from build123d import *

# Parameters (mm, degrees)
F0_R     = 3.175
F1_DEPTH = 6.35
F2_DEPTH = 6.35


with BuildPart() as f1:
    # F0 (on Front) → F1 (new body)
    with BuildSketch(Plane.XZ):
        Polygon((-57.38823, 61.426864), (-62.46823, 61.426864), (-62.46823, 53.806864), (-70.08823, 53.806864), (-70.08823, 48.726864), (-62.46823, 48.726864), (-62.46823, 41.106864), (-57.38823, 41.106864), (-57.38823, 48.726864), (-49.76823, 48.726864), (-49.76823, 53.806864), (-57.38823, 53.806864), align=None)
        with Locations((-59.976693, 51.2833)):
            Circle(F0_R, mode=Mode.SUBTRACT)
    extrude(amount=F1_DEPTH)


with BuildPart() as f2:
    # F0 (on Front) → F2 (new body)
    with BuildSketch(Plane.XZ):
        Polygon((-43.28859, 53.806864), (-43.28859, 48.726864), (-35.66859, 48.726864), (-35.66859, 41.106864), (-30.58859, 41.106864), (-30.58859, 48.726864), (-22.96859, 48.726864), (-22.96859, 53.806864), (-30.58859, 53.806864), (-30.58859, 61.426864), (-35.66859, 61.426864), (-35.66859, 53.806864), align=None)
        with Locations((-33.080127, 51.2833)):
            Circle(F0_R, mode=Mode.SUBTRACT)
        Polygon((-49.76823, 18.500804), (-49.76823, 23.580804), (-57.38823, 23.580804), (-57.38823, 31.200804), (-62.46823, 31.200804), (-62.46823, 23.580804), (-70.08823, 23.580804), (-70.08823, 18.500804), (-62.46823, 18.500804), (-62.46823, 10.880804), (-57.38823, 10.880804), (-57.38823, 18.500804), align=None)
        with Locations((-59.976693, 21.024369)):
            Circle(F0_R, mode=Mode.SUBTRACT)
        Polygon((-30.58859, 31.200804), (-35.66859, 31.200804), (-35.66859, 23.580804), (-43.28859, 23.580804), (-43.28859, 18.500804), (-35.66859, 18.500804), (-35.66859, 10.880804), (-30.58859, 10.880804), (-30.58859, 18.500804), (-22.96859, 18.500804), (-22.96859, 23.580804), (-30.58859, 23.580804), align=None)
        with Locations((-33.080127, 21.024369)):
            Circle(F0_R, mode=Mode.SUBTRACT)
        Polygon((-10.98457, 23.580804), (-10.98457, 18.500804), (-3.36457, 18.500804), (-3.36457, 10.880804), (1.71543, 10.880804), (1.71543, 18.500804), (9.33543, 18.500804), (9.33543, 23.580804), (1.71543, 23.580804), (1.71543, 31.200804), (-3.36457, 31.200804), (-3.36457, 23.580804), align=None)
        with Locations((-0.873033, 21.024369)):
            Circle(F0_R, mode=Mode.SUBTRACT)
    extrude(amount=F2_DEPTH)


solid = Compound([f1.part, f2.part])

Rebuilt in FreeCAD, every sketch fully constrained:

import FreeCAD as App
import Part
import Sketcher

V = App.Vector
Q = App.Units.Quantity

doc = App.newDocument("Part")
body = doc.addObject("PartDesign::Body", "Body")

# Sketch on XZ plane
sketch1 = doc.addObject("Sketcher::SketchObject", "Sketch")
body.addObject(sketch1)
sketch1.AttachmentSupport = (doc.XZ_Plane, [""])
sketch1.MapMode = "FlatFace"
sketch1.addGeometry([
    Part.LineSegment(V(-57.4, 61.4, 0), V(-62.5, 61.4, 0)),  # 0
    Part.LineSegment(V(-62.5, 61.4, 0), V(-62.5, 53.8, 0)),  # 1
    Part.LineSegment(V(-62.5, 53.8, 0), V(-70.1, 53.8, 0)),  # 2
    Part.LineSegment(V(-70.1, 53.8, 0), V(-70.1, 48.7, 0)),  # 3
    Part.LineSegment(V(-70.1, 48.7, 0), V(-62.5, 48.7, 0)),  # 4
    Part.LineSegment(V(-62.5, 48.7, 0), V(-62.5, 41.1, 0)),  # 5
    Part.LineSegment(V(-62.5, 41.1, 0), V(-57.4, 41.1, 0)),  # 6
    Part.LineSegment(V(-57.4, 41.1, 0), V(-57.4, 48.7, 0)),  # 7
    Part.LineSegment(V(-57.4, 48.7, 0), V(-49.8, 48.7, 0)),  # 8
    Part.LineSegment(V(-49.8, 48.7, 0), V(-49.8, 53.8, 0)),  # 9
    Part.LineSegment(V(-49.8, 53.8, 0), V(-57.4, 53.8, 0)),  # 10
    Part.LineSegment(V(-57.4, 53.8, 0), V(-57.4, 61.4, 0)),  # 11
    Part.Circle(V(-60, 51.3, 0), V(0, 0, 1), 3.2),  # 12
], False)
sketch1.addConstraint([
    Sketcher.Constraint("Coincident", 0, 2, 1, 1),
    Sketcher.Constraint("Coincident", 1, 2, 2, 1),
    Sketcher.Constraint("Coincident", 2, 2, 3, 1),
    Sketcher.Constraint("Coincident", 3, 2, 4, 1),
    Sketcher.Constraint("Coincident", 4, 2, 5, 1),
    Sketcher.Constraint("Coincident", 5, 2, 6, 1),
    Sketcher.Constraint("Coincident", 6, 2, 7, 1),
    Sketcher.Constraint("Coincident", 7, 2, 8, 1),
    Sketcher.Constraint("Coincident", 8, 2, 9, 1),
    Sketcher.Constraint("Coincident", 9, 2, 10, 1),
    Sketcher.Constraint("Coincident", 10, 2, 11, 1),
    Sketcher.Constraint("Coincident", 11, 2, 0, 1),
    Sketcher.Constraint("Horizontal", 0),
    Sketcher.Constraint("Vertical", 1),
    Sketcher.Constraint("Horizontal", 2),
    Sketcher.Constraint("Vertical", 3),
    Sketcher.Constraint("Horizontal", 4),
    Sketcher.Constraint("Vertical", 5),
    Sketcher.Constraint("Horizontal", 6),
    Sketcher.Constraint("Vertical", 7),
    Sketcher.Constraint("Horizontal", 8),
    Sketcher.Constraint("Vertical", 9),
    Sketcher.Constraint("Horizontal", 10),
    Sketcher.Constraint("Vertical", 11),
    Sketcher.Constraint("Horizontal", 4, 2, 7, 2),
    Sketcher.Constraint("Horizontal", 2, 2, 9, 2),
    Sketcher.Constraint("Vertical", 1, 2, 4, 2),
    Sketcher.Constraint("Vertical", 7, 2, 10, 2),
    Sketcher.Constraint("Equal", 4, 8),
    Sketcher.Constraint("Equal", 10, 1),
    Sketcher.Constraint("Equal", 6, 3),
    Sketcher.Constraint("Equal", 1, 5),
    Sketcher.Constraint("Diameter", 12, Q("0.25 in")),
    Sketcher.Constraint("DistanceX", 0, 2, 0, 1, Q("0.2 in")),
    Sketcher.Constraint("DistanceX", 2, 2, 2, 1, Q("0.3 in")),
    Sketcher.Constraint("DistanceY", -1, 1, 12, 3, 51.2833),
    Sketcher.Constraint("DistanceX", 0, 2, -1, 1, 62.46823),
    Sketcher.Constraint("DistanceX", 12, 3, -1, 1, 59.976693),
    Sketcher.Constraint("DistanceY", -1, 1, 0, 2, 61.426864),
])
pad1 = doc.addObject("PartDesign::Pad", "Pad")
body.addObject(pad1)
pad1.Profile = sketch1
pad1.Length = Q("0.25 in")
body2 = doc.addObject("PartDesign::Body", "Body001")
body2.AllowCompound = True

# Sketch on XZ plane
sketch2 = doc.addObject("Sketcher::SketchObject", "Sketch001")
body2.addObject(sketch2)
sketch2.AttachmentSupport = (doc.getObject("XZ_Plane001"), [""])
sketch2.MapMode = "FlatFace"
sketch2.addGeometry([
    Part.LineSegment(V(-43.3, 53.8, 0), V(-43.3, 48.7, 0)),  # 0
    Part.LineSegment(V(-43.3, 48.7, 0), V(-35.7, 48.7, 0)),  # 1
    Part.LineSegment(V(-35.7, 48.7, 0), V(-35.7, 41.1, 0)),  # 2
    Part.LineSegment(V(-35.7, 41.1, 0), V(-30.6, 41.1, 0)),  # 3
    Part.LineSegment(V(-30.6, 41.1, 0), V(-30.6, 48.7, 0)),  # 4
    Part.LineSegment(V(-30.6, 48.7, 0), V(-23, 48.7, 0)),  # 5
    Part.LineSegment(V(-23, 48.7, 0), V(-23, 53.8, 0)),  # 6
    Part.LineSegment(V(-23, 53.8, 0), V(-30.6, 53.8, 0)),  # 7
    Part.LineSegment(V(-30.6, 53.8, 0), V(-30.6, 61.4, 0)),  # 8
    Part.LineSegment(V(-30.6, 61.4, 0), V(-35.7, 61.4, 0)),  # 9
    Part.LineSegment(V(-35.7, 61.4, 0), V(-35.7, 53.8, 0)),  # 10
    Part.LineSegment(V(-35.7, 53.8, 0), V(-43.3, 53.8, 0)),  # 11
    Part.Circle(V(-33.1, 51.3, 0), V(0, 0, 1), 3.2),  # 12
    Part.LineSegment(V(-49.8, 18.5, 0), V(-49.8, 23.6, 0)),  # 13
    Part.LineSegment(V(-49.8, 23.6, 0), V(-57.4, 23.6, 0)),  # 14
    Part.LineSegment(V(-57.4, 23.6, 0), V(-57.4, 31.2, 0)),  # 15
    Part.LineSegment(V(-57.4, 31.2, 0), V(-62.5, 31.2, 0)),  # 16
    Part.LineSegment(V(-62.5, 31.2, 0), V(-62.5, 23.6, 0)),  # 17
    Part.LineSegment(V(-62.5, 23.6, 0), V(-70.1, 23.6, 0)),  # 18
    Part.LineSegment(V(-70.1, 23.6, 0), V(-70.1, 18.5, 0)),  # 19
    Part.LineSegment(V(-70.1, 18.5, 0), V(-62.5, 18.5, 0)),  # 20
    Part.LineSegment(V(-62.5, 18.5, 0), V(-62.5, 10.9, 0)),  # 21
    Part.LineSegment(V(-62.5, 10.9, 0), V(-57.4, 10.9, 0)),  # 22
    Part.LineSegment(V(-57.4, 10.9, 0), V(-57.4, 18.5, 0)),  # 23
    Part.LineSegment(V(-57.4, 18.5, 0), V(-49.8, 18.5, 0)),  # 24
    Part.Circle(V(-60, 21, 0), V(0, 0, 1), 3.2),  # 25
    Part.LineSegment(V(-30.6, 31.2, 0), V(-35.7, 31.2, 0)),  # 26
    Part.LineSegment(V(-35.7, 31.2, 0), V(-35.7, 23.6, 0)),  # 27
    Part.LineSegment(V(-35.7, 23.6, 0), V(-43.3, 23.6, 0)),  # 28
    Part.LineSegment(V(-43.3, 23.6, 0), V(-43.3, 18.5, 0)),  # 29
    Part.LineSegment(V(-43.3, 18.5, 0), V(-35.7, 18.5, 0)),  # 30
    Part.LineSegment(V(-35.7, 18.5, 0), V(-35.7, 10.9, 0)),  # 31
    Part.LineSegment(V(-35.7, 10.9, 0), V(-30.6, 10.9, 0)),  # 32
    Part.LineSegment(V(-30.6, 10.9, 0), V(-30.6, 18.5, 0)),  # 33
    Part.LineSegment(V(-30.6, 18.5, 0), V(-23, 18.5, 0)),  # 34
    Part.LineSegment(V(-23, 18.5, 0), V(-23, 23.6, 0)),  # 35
    Part.LineSegment(V(-23, 23.6, 0), V(-30.6, 23.6, 0)),  # 36
    Part.LineSegment(V(-30.6, 23.6, 0), V(-30.6, 31.2, 0)),  # 37
    Part.Circle(V(-33.1, 21, 0), V(0, 0, 1), 3.2),  # 38
    Part.LineSegment(V(-11, 23.6, 0), V(-11, 18.5, 0)),  # 39
    Part.LineSegment(V(-11, 18.5, 0), V(-3.4, 18.5, 0)),  # 40
    Part.LineSegment(V(-3.4, 18.5, 0), V(-3.4, 10.9, 0)),  # 41
    Part.LineSegment(V(-3.4, 10.9, 0), V(1.7, 10.9, 0)),  # 42
    Part.LineSegment(V(1.7, 10.9, 0), V(1.7, 18.5, 0)),  # 43
    Part.LineSegment(V(1.7, 18.5, 0), V(9.3, 18.5, 0)),  # 44
    Part.LineSegment(V(9.3, 18.5, 0), V(9.3, 23.6, 0)),  # 45
    Part.LineSegment(V(9.3, 23.6, 0), V(1.7, 23.6, 0)),  # 46
    Part.LineSegment(V(1.7, 23.6, 0), V(1.7, 31.2, 0)),  # 47
    Part.LineSegment(V(1.7, 31.2, 0), V(-3.4, 31.2, 0)),  # 48
    Part.LineSegment(V(-3.4, 31.2, 0), V(-3.4, 23.6, 0)),  # 49
    Part.LineSegment(V(-3.4, 23.6, 0), V(-11, 23.6, 0)),  # 50
    Part.Circle(V(-0.9, 21, 0), V(0, 0, 1), 3.2),  # 51
], False)
sketch2.addConstraint([
    Sketcher.Constraint("Coincident", 0, 2, 1, 1),
    Sketcher.Constraint("Coincident", 1, 2, 2, 1),
    Sketcher.Constraint("Coincident", 2, 2, 3, 1),
    Sketcher.Constraint("Coincident", 3, 2, 4, 1),
    Sketcher.Constraint("Coincident", 4, 2, 5, 1),
    Sketcher.Constraint("Coincident", 5, 2, 6, 1),
    Sketcher.Constraint("Coincident", 6, 2, 7, 1),
    Sketcher.Constraint("Coincident", 7, 2, 8, 1),
    Sketcher.Constraint("Coincident", 8, 2, 9, 1),
    Sketcher.Constraint("Coincident", 9, 2, 10, 1),
    Sketcher.Constraint("Coincident", 10, 2, 11, 1),
    Sketcher.Constraint("Coincident", 11, 2, 0, 1),
    Sketcher.Constraint("Coincident", 13, 2, 14, 1),
    Sketcher.Constraint("Coincident", 14, 2, 15, 1),
    Sketcher.Constraint("Coincident", 15, 2, 16, 1),
    Sketcher.Constraint("Coincident", 16, 2, 17, 1),
    Sketcher.Constraint("Coincident", 17, 2, 18, 1),
    Sketcher.Constraint("Coincident", 18, 2, 19, 1),
    Sketcher.Constraint("Coincident", 19, 2, 20, 1),
    Sketcher.Constraint("Coincident", 20, 2, 21, 1),
    Sketcher.Constraint("Coincident", 21, 2, 22, 1),
    Sketcher.Constraint("Coincident", 22, 2, 23, 1),
    Sketcher.Constraint("Coincident", 23, 2, 24, 1),
    Sketcher.Constraint("Coincident", 24, 2, 13, 1),
    Sketcher.Constraint("Coincident", 26, 2, 27, 1),
    Sketcher.Constraint("Coincident", 27, 2, 28, 1),
    Sketcher.Constraint("Coincident", 28, 2, 29, 1),
    Sketcher.Constraint("Coincident", 29, 2, 30, 1),
    Sketcher.Constraint("Coincident", 30, 2, 31, 1),
    Sketcher.Constraint("Coincident", 31, 2, 32, 1),
    Sketcher.Constraint("Coincident", 32, 2, 33, 1),
    Sketcher.Constraint("Coincident", 33, 2, 34, 1),
    Sketcher.Constraint("Coincident", 34, 2, 35, 1),
    Sketcher.Constraint("Coincident", 35, 2, 36, 1),
    Sketcher.Constraint("Coincident", 36, 2, 37, 1),
    Sketcher.Constraint("Coincident", 37, 2, 26, 1),
    Sketcher.Constraint("Coincident", 39, 2, 40, 1),
    Sketcher.Constraint("Coincident", 40, 2, 41, 1),
    Sketcher.Constraint("Coincident", 41, 2, 42, 1),
    Sketcher.Constraint("Coincident", 42, 2, 43, 1),
    Sketcher.Constraint("Coincident", 43, 2, 44, 1),
    Sketcher.Constraint("Coincident", 44, 2, 45, 1),
    Sketcher.Constraint("Coincident", 45, 2, 46, 1),
    Sketcher.Constraint("Coincident", 46, 2, 47, 1),
    Sketcher.Constraint("Coincident", 47, 2, 48, 1),
    Sketcher.Constraint("Coincident", 48, 2, 49, 1),
    Sketcher.Constraint("Coincident", 49, 2, 50, 1),
    Sketcher.Constraint("Coincident", 50, 2, 39, 1),
    Sketcher.Constraint("Vertical", 0),
    Sketcher.Constraint("Horizontal", 1),
    Sketcher.Constraint("Vertical", 2),
    Sketcher.Constraint("Horizontal", 3),
    Sketcher.Constraint("Vertical", 4),
    Sketcher.Constraint("Horizontal", 5),
    Sketcher.Constraint("Vertical", 6),
    Sketcher.Constraint("Horizontal", 7),
    Sketcher.Constraint("Vertical", 8),
    Sketcher.Constraint("Horizontal", 9),
    Sketcher.Constraint("Vertical", 10),
    Sketcher.Constraint("Horizontal", 11),
    Sketcher.Constraint("Vertical", 13),
    Sketcher.Constraint("Horizontal", 14),
    Sketcher.Constraint("Vertical", 15),
    Sketcher.Constraint("Horizontal", 16),
    Sketcher.Constraint("Vertical", 17),
    Sketcher.Constraint("Horizontal", 18),
    Sketcher.Constraint("Vertical", 19),
    Sketcher.Constraint("Horizontal", 20),
    Sketcher.Constraint("Vertical", 21),
    Sketcher.Constraint("Horizontal", 22),
    Sketcher.Constraint("Vertical", 23),
    Sketcher.Constraint("Horizontal", 24),
    Sketcher.Constraint("Horizontal", 26),
    Sketcher.Constraint("Vertical", 27),
    Sketcher.Constraint("Horizontal", 28),
    Sketcher.Constraint("Vertical", 29),
    Sketcher.Constraint("Horizontal", 30),
    Sketcher.Constraint("Vertical", 31),
    Sketcher.Constraint("Horizontal", 32),
    Sketcher.Constraint("Vertical", 33),
    Sketcher.Constraint("Horizontal", 34),
    Sketcher.Constraint("Vertical", 35),
    Sketcher.Constraint("Horizontal", 36),
    Sketcher.Constraint("Vertical", 37),
    Sketcher.Constraint("Vertical", 39),
    Sketcher.Constraint("Horizontal", 40),
    Sketcher.Constraint("Vertical", 41),
    Sketcher.Constraint("Horizontal", 42),
    Sketcher.Constraint("Vertical", 43),
    Sketcher.Constraint("Horizontal", 44),
    Sketcher.Constraint("Vertical", 45),
    Sketcher.Constraint("Horizontal", 46),
    Sketcher.Constraint("Vertical", 47),
    Sketcher.Constraint("Horizontal", 48),
    Sketcher.Constraint("Vertical", 49),
    Sketcher.Constraint("Horizontal", 50),
    Sketcher.Constraint("Equal", 12, 25),
    Sketcher.Constraint("Equal", 25, 38),
    Sketcher.Constraint("Equal", 38, 51),
    Sketcher.Constraint("Horizontal", 25, 3, 38, 3),
    Sketcher.Constraint("Horizontal", 38, 3, 51, 3),
    Sketcher.Constraint("Horizontal", 1, 2, 4, 2),
    Sketcher.Constraint("Horizontal", 7, 2, 10, 2),
    Sketcher.Constraint("Horizontal", 14, 2, 17, 2),
    Sketcher.Constraint("Horizontal", 20, 2, 23, 2),
    Sketcher.Constraint("Horizontal", 16, 2, 26, 2),
    Sketcher.Constraint("Horizontal", 18, 2, 27, 2),
    Sketcher.Constraint("Horizontal", 24, 2, 29, 2),
    Sketcher.Constraint("Horizontal", 22, 2, 31, 2),
    Sketcher.Constraint("Horizontal", 30, 2, 33, 2),
    Sketcher.Constraint("Horizontal", 28, 2, 35, 2),
    Sketcher.Constraint("Horizontal", 34, 2, 39, 2),
    Sketcher.Constraint("Horizontal", 32, 2, 41, 2),
    Sketcher.Constraint("Horizontal", 40, 2, 43, 2),
    Sketcher.Constraint("Horizontal", 36, 2, 45, 2),
    Sketcher.Constraint("Horizontal", 37, 2, 47, 2),
    Sketcher.Constraint("Horizontal", 46, 2, 49, 2),
    Sketcher.Constraint("Vertical", 12, 3, 38, 3),
    Sketcher.Constraint("Vertical", 4, 2, 7, 2),
    Sketcher.Constraint("Vertical", 2, 2, 9, 2),
    Sketcher.Constraint("Vertical", 17, 2, 20, 2),
    Sketcher.Constraint("Vertical", 15, 2, 22, 2),
    Sketcher.Constraint("Vertical", 10, 2, 26, 2),
    Sketcher.Constraint("Vertical", 11, 2, 28, 2),
    Sketcher.Constraint("Vertical", 27, 2, 30, 2),
    Sketcher.Constraint("Vertical", 8, 2, 32, 2),
    Sketcher.Constraint("Vertical", 6, 2, 34, 2),
    Sketcher.Constraint("Vertical", 33, 2, 36, 2),
    Sketcher.Constraint("Vertical", 43, 2, 46, 2),
    Sketcher.Constraint("Vertical", 41, 2, 48, 2),
    Sketcher.Constraint("Equal", 1, 5),
    Sketcher.Constraint("Equal", 11, 14),
    Sketcher.Constraint("Equal", 9, 16),
    Sketcher.Constraint("Equal", 14, 18),
    Sketcher.Constraint("Equal", 36, 40),
    Sketcher.Constraint("Equal", 32, 42),
    Sketcher.Constraint("Equal", 40, 44),
    Sketcher.Constraint("Equal", 48, 0),
    Sketcher.Constraint("Equal", 50, 2),
    Sketcher.Constraint("Equal", 4, 8),
    Sketcher.Constraint("Equal", 6, 13),
    Sketcher.Constraint("Equal", 10, 15),
    Sketcher.Constraint("Equal", 17, 21),
    Sketcher.Constraint("Diameter", 12, Q("0.25 in")),
    Sketcher.Constraint("DistanceX", 1, 1, 1, 2, Q("0.3 in")),
    Sketcher.Constraint("DistanceX", 3, 1, 3, 2, Q("0.2 in")),
    Sketcher.Constraint("DistanceY", -1, 1, 12, 3, 51.2833),
    Sketcher.Constraint("DistanceY", -1, 1, 25, 3, 21.024369),
    Sketcher.Constraint("DistanceX", 0, 2, -1, 1, 43.28859),
    Sketcher.Constraint("DistanceX", 13, 2, -1, 1, 49.76823),
    Sketcher.Constraint("DistanceX", 39, 2, -1, 1, 10.98457),
    Sketcher.Constraint("DistanceX", 25, 3, 51, 3, 59.10366),
    Sketcher.Constraint("DistanceY", 13, 2, 2, 2, 17.52606),
    Sketcher.Constraint("DistanceX", 12, 3, -1, 1, 33.080127),
    Sketcher.Constraint("DistanceX", 25, 3, -1, 1, 59.976693),
    Sketcher.Constraint("DistanceY", -1, 1, 0, 2, 48.726864),
])
pad2 = doc.addObject("PartDesign::Pad", "Pad001")
body2.addObject(pad2)
pad2.Profile = sketch2
pad2.Length = Q("0.25 in")

doc.recompute()
